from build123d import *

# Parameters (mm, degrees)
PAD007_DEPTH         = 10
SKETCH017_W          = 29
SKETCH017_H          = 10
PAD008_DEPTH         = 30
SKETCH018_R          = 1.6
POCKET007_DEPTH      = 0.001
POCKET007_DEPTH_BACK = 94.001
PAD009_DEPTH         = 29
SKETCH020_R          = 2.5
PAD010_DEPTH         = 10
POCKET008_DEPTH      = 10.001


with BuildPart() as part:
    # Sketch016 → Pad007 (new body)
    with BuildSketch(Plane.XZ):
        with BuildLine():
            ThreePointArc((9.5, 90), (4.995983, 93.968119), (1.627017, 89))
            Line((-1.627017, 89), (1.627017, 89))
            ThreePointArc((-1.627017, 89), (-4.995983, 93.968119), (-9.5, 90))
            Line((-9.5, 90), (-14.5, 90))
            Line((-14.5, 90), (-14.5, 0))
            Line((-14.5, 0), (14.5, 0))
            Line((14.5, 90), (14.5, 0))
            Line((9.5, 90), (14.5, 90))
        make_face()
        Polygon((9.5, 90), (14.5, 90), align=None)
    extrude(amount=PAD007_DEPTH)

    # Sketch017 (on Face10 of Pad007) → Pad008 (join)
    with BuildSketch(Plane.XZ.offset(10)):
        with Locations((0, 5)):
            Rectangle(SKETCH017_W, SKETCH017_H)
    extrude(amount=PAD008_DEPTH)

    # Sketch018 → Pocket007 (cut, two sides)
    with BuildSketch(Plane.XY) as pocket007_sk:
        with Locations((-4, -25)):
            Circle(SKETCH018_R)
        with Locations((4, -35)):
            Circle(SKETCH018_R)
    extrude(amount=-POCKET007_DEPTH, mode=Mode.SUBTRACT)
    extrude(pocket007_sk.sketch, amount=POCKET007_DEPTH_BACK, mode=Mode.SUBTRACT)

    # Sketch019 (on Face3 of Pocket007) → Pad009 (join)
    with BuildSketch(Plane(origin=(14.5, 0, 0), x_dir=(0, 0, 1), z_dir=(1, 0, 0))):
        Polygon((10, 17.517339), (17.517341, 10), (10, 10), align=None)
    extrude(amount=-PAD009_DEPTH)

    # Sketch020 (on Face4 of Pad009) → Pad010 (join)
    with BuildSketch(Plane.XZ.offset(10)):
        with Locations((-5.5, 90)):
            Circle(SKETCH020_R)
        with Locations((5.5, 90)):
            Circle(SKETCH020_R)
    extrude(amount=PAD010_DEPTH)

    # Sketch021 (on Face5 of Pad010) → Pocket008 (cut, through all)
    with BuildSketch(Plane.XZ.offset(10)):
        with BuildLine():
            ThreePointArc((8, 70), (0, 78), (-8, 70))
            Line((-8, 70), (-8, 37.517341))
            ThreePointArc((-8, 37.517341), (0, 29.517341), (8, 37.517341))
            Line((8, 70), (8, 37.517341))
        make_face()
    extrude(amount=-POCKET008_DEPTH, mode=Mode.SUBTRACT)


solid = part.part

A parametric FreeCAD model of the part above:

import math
import FreeCAD as App
import Part
import Sketcher

doc = App.newDocument("Part")
params = doc.addObject("Spreadsheet::Sheet", "Params")
for row, (alias, value) in enumerate([
    ("sketch1_radius", "4 mm"),
    ("sketch1_width", "5 mm"),
    ("sketch1_width2", "29 mm"),
    ("sketch1_height", "90 mm"),
    ("pad1_length", "10 mm"),
    ("sketch2_width", "29 mm"),
    ("sketch2_height", "10 mm"),
    ("pad2_length", "30 mm"),
    ("sketch3_diameter", "3.2 mm"),
    ("pad3_length", "29 mm"),
    ("sketch5_diameter", "5 mm"),
    ("pad4_length", "10 mm"),
    ("sketch6_radius", "8 mm"),
], start=1):
    params.set(f"A{row}", alias)
    params.set(f"B{row}", "=" + value)
    params.setAlias(f"B{row}", alias)

body = doc.addObject("PartDesign::Body", "Body")

sketch1 = body.newObject("Sketcher::SketchObject", "Sketch")
sketch1.AttachmentSupport = (doc.getObject("XZ_Plane"), [""])
sketch1.MapMode = "FlatFace"
sketch1.addGeometry([
    Part.ArcOfCircle(Part.Circle(App.Vector(5.5, 90, 0), App.Vector(0, 0, 1), 4), math.radians(0), math.radians(194)),
    Part.LineSegment(App.Vector(1.6, 89, 0), App.Vector(-1.6, 89, 0)),
    Part.ArcOfCircle(Part.Circle(App.Vector(-5.5, 90, 0), App.Vector(0, 0, 1), 4), math.radians(-14), math.radians(180)),
    Part.LineSegment(App.Vector(-9.5, 90, 0), App.Vector(-14.5, 90, 0)),
    Part.LineSegment(App.Vector(-14.5, 90, 0), App.Vector(-14.5, 0, 0)),
    Part.LineSegment(App.Vector(-14.5, 0, 0), App.Vector(14.5, 0, 0)),
    Part.LineSegment(App.Vector(14.5, 0, 0), App.Vector(14.5, 90, 0)),
    Part.LineSegment(App.Vector(14.5, 90, 0), App.Vector(9.5, 90, 0)),
], False)
sketch1.addConstraint([
    Sketcher.Constraint("Coincident", 0, 2, 1, 1),
    Sketcher.Constraint("Coincident", 1, 2, 2, 1),
    Sketcher.Constraint("Coincident", 2, 2, 3, 1),
    Sketcher.Constraint("Coincident", 3, 2, 4, 1),
    Sketcher.Constraint("Coincident", 4, 2, 5, 1),
    Sketcher.Constraint("Coincident", 5, 2, 6, 1),
    Sketcher.Constraint("Coincident", 6, 2, 7, 1),
    Sketcher.Constraint("Coincident", 7, 2, 0, 1),
    Sketcher.Constraint("Horizontal", 1),
    Sketcher.Constraint("Horizontal", 3),
    Sketcher.Constraint("Vertical", 4),
    Sketcher.Constraint("Horizontal", 5),
    Sketcher.Constraint("Vertical", 6),
    Sketcher.Constraint("Horizontal", 7),
    Sketcher.Constraint("Equal", 0, 2),
    Sketcher.Constraint("Symmetric", 4, 2, 5, 2, -1, 1),
    Sketcher.Constraint("Symmetric", 0, 3, 2, 3, -2),
    Sketcher.Constraint("Horizontal", 0, 3, 2, 2),
    Sketcher.Constraint("Horizontal", 3, 2, 6, 2),
    Sketcher.Constraint("Radius", 0, 4.0),
    Sketcher.Constraint("DistanceX", 3, 2, 3, 1, 5.0),
    Sketcher.Constraint("DistanceX", 5, 1, 5, 2, 29.0),
    Sketcher.Constraint("DistanceY", 4, 2, 4, 1, 90.0),
    Sketcher.Constraint("DistanceY", -1, 1, 0, 2, 89.0),
])
sketch1.setExpression("Constraints[19]", "Params.sketch1_radius")
sketch1.setExpression("Constraints[20]", "Params.sketch1_width")
sketch1.setExpression("Constraints[21]", "Params.sketch1_width2")
sketch1.setExpression("Constraints[22]", "Params.sketch1_height")
pad1 = body.newObject("PartDesign::Pad", "Pad")
pad1.Profile = sketch1
pad1.setExpression("Length", "Params.pad1_length")

sketch2 = body.newObject("Sketcher::SketchObject", "Sketch001")
sketch2.AttachmentSupport = (doc.getObject("XZ_Plane"), [""])
sketch2.MapMode = "FlatFace"
sketch2.AttachmentOffset = App.Placement(App.Vector(0, 0, 10), App.Rotation())
sketch2.addGeometry([
    Part.LineSegment(App.Vector(-14, 10, 0), App.Vector(-14, 0, 0)),
    Part.LineSegment(App.Vector(-14, 0, 0), App.Vector(14, 0, 0)),
    Part.LineSegment(App.Vector(14, 0, 0), App.Vector(14, 10, 0)),
    Part.LineSegment(App.Vector(14, 10, 0), App.Vector(-14, 10, 0)),
], False)
sketch2.addConstraint([
    Sketcher.Constraint("Coincident", 0, 2, 1, 1),
    Sketcher.Constraint("Coincident", 1, 2, 2, 1),
    Sketcher.Constraint("Coincident", 2, 2, 3, 1),
    Sketcher.Constraint("Coincident", 3, 2, 0, 1),
    Sketcher.Constraint("Vertical", 0),
    Sketcher.Constraint("Horizontal", 1),
    Sketcher.Constraint("Vertical", 2),
    Sketcher.Constraint("Horizontal", 3),
    Sketcher.Constraint("Symmetric", 0, 2, 1, 2, -1, 1),
    Sketcher.Constraint("DistanceX", 1, 1, 1, 2, 29.0),
    Sketcher.Constraint("DistanceY", 0, 2, 0, 1, 10.0),
])
sketch2.setExpression("Constraints[9]", "Params.sketch2_width")
sketch2.setExpression("Constraints[10]", "Params.sketch2_height")
pad2 = body.newObject("PartDesign::Pad", "Pad001")
pad2.Profile = sketch2
pad2.setExpression("Length", "Params.pad2_length")

sketch3 = body.newObject("Sketcher::SketchObject", "Sketch002")
sketch3.AttachmentSupport = (doc.getObject("XY_Plane"), [""])
sketch3.MapMode = "FlatFace"
sketch3.addGeometry([
    Part.Circle(App.Vector(-4, -25, 0), App.Vector(0, 0, 1), 1.6),
    Part.Circle(App.Vector(4, -35, 0), App.Vector(0, 0, 1), 1.6),
], False)
sketch3.addConstraint([
    Sketcher.Constraint("Equal", 0, 1),
    Sketcher.Constraint("Diameter", 0, 3.2),
    Sketcher.Constraint("DistanceX", 0, 3, -1, 1, 4.0),
    Sketcher.Constraint("DistanceY", 0, 3, -1, 1, 25.0),
    Sketcher.Constraint("DistanceX", -1, 1, 1, 3, 4.0),
    Sketcher.Constraint("DistanceY", 1, 3, -1, 1, 35.0),
])
sketch3.setExpression("Constraints[1]", "Params.sketch3_diameter")
pocket1 = body.newObject("PartDesign::Pocket", "Pocket")
pocket1.Profile = sketch3
pocket1.Type = "ThroughAll"
pocket1.Midplane = True

sketch4 = body.newObject("Sketcher::SketchObject", "Sketch003")
sketch4.AttachmentSupport = (doc.getObject("YZ_Plane"), [""])
sketch4.MapMode = "FlatFace"
sketch4.AttachmentOffset = App.Placement(App.Vector(0, 0, 14.5), App.Rotation())
sketch4.addGeometry([
    Part.LineSegment(App.Vector(-10, 18, 0), App.Vector(-18, 10, 0)),
    Part.LineSegment(App.Vector(-18, 10, 0), App.Vector(-10, 10, 0)),
    Part.LineSegment(App.Vector(-10, 10, 0), App.Vector(-10, 18, 0)),
], False)
sketch4.addConstraint([
    Sketcher.Constraint("Coincident", 0, 2, 1, 1),
    Sketcher.Constraint("Coincident", 1, 2, 2, 1),
    Sketcher.Constraint("Coincident", 2, 2, 0, 1),
    Sketcher.Constraint("Horizontal", 1),
    Sketcher.Constraint("Vertical", 2),
    Sketcher.Constraint("Equal", 1, 2),
    Sketcher.Constraint("DistanceY", -1, 1, 0, 2, 10.0),
    Sketcher.Constraint("DistanceX", 1, 2, -1, 1, 10.0),
    Sketcher.Constraint("DistanceX", 1, 1, 1, 2, 7.517339),
])
pad3 = body.newObject("PartDesign::Pad", "Pad002")
pad3.Profile = sketch4
pad3.setExpression("Length", "Params.pad3_length")
pad3.Reversed = True

sketch5 = body.newObject("Sketcher::SketchObject", "Sketch004")
sketch5.AttachmentSupport = (doc.getObject("XZ_Plane"), [""])
sketch5.MapMode = "FlatFace"
sketch5.AttachmentOffset = App.Placement(App.Vector(0, 0, 10), App.Rotation())
sketch5.addGeometry([
    Part.Circle(App.Vector(-5.5, 90, 0), App.Vector(0, 0, 1), 2.5),
    Part.Circle(App.Vector(5.5, 90, 0), App.Vector(0, 0, 1), 2.5),
], False)
sketch5.addConstraint([
    Sketcher.Constraint("Equal", 0, 1),
    Sketcher.Constraint("Symmetric", 0, 3, 1, 3, -2),
    Sketcher.Constraint("Diameter", 0, 5.0),
    Sketcher.Constraint("DistanceY", -1, 1, 0, 3, 90.0),
    Sketcher.Constraint("DistanceX", 0, 3, 1, 3, 11.0),
])
sketch5.setExpression("Constraints[2]", "Params.sketch5_diameter")
pad4 = body.newObject("PartDesign::Pad", "Pad003")
pad4.Profile = sketch5
pad4.setExpression("Length", "Params.pad4_length")

sketch6 = body.newObject("Sketcher::SketchObject", "Sketch005")
sketch6.AttachmentSupport = (doc.getObject("XZ_Plane"), [""])
sketch6.MapMode = "FlatFace"
sketch6.AttachmentOffset = App.Placement(App.Vector(0, 0, 10), App.Rotation())
sketch6.addGeometry([
    Part.ArcOfCircle(Part.Circle(App.Vector(0, 70, 0), App.Vector(0, 0, 1), 8), math.radians(0), math.radians(180)),
    Part.LineSegment(App.Vector(-8, 70, 0), App.Vector(-8, 38, 0)),
    Part.ArcOfCircle(Part.Circle(App.Vector(0, 38, 0), App.Vector(0, 0, 1), 8), math.radians(180), math.radians(360)),
    Part.LineSegment(App.Vector(8, 38, 0), App.Vector(8, 70, 0)),
], False)
sketch6.addConstraint([
    Sketcher.Constraint("Tangent", 0, 2, 1, 1),
    Sketcher.Constraint("Tangent", 1, 2, 2, 1),
    Sketcher.Constraint("Tangent", 2, 2, 3, 1),
    Sketcher.Constraint("Tangent", 3, 2, 0, 1),
    Sketcher.Constraint("Vertical", 1),
    Sketcher.Constraint("Vertical", 3),
    Sketcher.Constraint("PointOnObject", 0, 3, -2),
    Sketcher.Constraint("Radius", 0, 8.0),
    Sketcher.Constraint("DistanceY", -1, 1, 0, 3, 70.0),
    Sketcher.Constraint("DistanceY", 1, 2, 1, 1, 32.482659),
])
sketch6.setExpression("Constraints[7]", "Params.sketch6_radius")
pocket2 = body.newObject("PartDesign::Pocket", "Pocket001")
pocket2.Profile = sketch6
pocket2.Type = "ThroughAll"

doc.recompute()
